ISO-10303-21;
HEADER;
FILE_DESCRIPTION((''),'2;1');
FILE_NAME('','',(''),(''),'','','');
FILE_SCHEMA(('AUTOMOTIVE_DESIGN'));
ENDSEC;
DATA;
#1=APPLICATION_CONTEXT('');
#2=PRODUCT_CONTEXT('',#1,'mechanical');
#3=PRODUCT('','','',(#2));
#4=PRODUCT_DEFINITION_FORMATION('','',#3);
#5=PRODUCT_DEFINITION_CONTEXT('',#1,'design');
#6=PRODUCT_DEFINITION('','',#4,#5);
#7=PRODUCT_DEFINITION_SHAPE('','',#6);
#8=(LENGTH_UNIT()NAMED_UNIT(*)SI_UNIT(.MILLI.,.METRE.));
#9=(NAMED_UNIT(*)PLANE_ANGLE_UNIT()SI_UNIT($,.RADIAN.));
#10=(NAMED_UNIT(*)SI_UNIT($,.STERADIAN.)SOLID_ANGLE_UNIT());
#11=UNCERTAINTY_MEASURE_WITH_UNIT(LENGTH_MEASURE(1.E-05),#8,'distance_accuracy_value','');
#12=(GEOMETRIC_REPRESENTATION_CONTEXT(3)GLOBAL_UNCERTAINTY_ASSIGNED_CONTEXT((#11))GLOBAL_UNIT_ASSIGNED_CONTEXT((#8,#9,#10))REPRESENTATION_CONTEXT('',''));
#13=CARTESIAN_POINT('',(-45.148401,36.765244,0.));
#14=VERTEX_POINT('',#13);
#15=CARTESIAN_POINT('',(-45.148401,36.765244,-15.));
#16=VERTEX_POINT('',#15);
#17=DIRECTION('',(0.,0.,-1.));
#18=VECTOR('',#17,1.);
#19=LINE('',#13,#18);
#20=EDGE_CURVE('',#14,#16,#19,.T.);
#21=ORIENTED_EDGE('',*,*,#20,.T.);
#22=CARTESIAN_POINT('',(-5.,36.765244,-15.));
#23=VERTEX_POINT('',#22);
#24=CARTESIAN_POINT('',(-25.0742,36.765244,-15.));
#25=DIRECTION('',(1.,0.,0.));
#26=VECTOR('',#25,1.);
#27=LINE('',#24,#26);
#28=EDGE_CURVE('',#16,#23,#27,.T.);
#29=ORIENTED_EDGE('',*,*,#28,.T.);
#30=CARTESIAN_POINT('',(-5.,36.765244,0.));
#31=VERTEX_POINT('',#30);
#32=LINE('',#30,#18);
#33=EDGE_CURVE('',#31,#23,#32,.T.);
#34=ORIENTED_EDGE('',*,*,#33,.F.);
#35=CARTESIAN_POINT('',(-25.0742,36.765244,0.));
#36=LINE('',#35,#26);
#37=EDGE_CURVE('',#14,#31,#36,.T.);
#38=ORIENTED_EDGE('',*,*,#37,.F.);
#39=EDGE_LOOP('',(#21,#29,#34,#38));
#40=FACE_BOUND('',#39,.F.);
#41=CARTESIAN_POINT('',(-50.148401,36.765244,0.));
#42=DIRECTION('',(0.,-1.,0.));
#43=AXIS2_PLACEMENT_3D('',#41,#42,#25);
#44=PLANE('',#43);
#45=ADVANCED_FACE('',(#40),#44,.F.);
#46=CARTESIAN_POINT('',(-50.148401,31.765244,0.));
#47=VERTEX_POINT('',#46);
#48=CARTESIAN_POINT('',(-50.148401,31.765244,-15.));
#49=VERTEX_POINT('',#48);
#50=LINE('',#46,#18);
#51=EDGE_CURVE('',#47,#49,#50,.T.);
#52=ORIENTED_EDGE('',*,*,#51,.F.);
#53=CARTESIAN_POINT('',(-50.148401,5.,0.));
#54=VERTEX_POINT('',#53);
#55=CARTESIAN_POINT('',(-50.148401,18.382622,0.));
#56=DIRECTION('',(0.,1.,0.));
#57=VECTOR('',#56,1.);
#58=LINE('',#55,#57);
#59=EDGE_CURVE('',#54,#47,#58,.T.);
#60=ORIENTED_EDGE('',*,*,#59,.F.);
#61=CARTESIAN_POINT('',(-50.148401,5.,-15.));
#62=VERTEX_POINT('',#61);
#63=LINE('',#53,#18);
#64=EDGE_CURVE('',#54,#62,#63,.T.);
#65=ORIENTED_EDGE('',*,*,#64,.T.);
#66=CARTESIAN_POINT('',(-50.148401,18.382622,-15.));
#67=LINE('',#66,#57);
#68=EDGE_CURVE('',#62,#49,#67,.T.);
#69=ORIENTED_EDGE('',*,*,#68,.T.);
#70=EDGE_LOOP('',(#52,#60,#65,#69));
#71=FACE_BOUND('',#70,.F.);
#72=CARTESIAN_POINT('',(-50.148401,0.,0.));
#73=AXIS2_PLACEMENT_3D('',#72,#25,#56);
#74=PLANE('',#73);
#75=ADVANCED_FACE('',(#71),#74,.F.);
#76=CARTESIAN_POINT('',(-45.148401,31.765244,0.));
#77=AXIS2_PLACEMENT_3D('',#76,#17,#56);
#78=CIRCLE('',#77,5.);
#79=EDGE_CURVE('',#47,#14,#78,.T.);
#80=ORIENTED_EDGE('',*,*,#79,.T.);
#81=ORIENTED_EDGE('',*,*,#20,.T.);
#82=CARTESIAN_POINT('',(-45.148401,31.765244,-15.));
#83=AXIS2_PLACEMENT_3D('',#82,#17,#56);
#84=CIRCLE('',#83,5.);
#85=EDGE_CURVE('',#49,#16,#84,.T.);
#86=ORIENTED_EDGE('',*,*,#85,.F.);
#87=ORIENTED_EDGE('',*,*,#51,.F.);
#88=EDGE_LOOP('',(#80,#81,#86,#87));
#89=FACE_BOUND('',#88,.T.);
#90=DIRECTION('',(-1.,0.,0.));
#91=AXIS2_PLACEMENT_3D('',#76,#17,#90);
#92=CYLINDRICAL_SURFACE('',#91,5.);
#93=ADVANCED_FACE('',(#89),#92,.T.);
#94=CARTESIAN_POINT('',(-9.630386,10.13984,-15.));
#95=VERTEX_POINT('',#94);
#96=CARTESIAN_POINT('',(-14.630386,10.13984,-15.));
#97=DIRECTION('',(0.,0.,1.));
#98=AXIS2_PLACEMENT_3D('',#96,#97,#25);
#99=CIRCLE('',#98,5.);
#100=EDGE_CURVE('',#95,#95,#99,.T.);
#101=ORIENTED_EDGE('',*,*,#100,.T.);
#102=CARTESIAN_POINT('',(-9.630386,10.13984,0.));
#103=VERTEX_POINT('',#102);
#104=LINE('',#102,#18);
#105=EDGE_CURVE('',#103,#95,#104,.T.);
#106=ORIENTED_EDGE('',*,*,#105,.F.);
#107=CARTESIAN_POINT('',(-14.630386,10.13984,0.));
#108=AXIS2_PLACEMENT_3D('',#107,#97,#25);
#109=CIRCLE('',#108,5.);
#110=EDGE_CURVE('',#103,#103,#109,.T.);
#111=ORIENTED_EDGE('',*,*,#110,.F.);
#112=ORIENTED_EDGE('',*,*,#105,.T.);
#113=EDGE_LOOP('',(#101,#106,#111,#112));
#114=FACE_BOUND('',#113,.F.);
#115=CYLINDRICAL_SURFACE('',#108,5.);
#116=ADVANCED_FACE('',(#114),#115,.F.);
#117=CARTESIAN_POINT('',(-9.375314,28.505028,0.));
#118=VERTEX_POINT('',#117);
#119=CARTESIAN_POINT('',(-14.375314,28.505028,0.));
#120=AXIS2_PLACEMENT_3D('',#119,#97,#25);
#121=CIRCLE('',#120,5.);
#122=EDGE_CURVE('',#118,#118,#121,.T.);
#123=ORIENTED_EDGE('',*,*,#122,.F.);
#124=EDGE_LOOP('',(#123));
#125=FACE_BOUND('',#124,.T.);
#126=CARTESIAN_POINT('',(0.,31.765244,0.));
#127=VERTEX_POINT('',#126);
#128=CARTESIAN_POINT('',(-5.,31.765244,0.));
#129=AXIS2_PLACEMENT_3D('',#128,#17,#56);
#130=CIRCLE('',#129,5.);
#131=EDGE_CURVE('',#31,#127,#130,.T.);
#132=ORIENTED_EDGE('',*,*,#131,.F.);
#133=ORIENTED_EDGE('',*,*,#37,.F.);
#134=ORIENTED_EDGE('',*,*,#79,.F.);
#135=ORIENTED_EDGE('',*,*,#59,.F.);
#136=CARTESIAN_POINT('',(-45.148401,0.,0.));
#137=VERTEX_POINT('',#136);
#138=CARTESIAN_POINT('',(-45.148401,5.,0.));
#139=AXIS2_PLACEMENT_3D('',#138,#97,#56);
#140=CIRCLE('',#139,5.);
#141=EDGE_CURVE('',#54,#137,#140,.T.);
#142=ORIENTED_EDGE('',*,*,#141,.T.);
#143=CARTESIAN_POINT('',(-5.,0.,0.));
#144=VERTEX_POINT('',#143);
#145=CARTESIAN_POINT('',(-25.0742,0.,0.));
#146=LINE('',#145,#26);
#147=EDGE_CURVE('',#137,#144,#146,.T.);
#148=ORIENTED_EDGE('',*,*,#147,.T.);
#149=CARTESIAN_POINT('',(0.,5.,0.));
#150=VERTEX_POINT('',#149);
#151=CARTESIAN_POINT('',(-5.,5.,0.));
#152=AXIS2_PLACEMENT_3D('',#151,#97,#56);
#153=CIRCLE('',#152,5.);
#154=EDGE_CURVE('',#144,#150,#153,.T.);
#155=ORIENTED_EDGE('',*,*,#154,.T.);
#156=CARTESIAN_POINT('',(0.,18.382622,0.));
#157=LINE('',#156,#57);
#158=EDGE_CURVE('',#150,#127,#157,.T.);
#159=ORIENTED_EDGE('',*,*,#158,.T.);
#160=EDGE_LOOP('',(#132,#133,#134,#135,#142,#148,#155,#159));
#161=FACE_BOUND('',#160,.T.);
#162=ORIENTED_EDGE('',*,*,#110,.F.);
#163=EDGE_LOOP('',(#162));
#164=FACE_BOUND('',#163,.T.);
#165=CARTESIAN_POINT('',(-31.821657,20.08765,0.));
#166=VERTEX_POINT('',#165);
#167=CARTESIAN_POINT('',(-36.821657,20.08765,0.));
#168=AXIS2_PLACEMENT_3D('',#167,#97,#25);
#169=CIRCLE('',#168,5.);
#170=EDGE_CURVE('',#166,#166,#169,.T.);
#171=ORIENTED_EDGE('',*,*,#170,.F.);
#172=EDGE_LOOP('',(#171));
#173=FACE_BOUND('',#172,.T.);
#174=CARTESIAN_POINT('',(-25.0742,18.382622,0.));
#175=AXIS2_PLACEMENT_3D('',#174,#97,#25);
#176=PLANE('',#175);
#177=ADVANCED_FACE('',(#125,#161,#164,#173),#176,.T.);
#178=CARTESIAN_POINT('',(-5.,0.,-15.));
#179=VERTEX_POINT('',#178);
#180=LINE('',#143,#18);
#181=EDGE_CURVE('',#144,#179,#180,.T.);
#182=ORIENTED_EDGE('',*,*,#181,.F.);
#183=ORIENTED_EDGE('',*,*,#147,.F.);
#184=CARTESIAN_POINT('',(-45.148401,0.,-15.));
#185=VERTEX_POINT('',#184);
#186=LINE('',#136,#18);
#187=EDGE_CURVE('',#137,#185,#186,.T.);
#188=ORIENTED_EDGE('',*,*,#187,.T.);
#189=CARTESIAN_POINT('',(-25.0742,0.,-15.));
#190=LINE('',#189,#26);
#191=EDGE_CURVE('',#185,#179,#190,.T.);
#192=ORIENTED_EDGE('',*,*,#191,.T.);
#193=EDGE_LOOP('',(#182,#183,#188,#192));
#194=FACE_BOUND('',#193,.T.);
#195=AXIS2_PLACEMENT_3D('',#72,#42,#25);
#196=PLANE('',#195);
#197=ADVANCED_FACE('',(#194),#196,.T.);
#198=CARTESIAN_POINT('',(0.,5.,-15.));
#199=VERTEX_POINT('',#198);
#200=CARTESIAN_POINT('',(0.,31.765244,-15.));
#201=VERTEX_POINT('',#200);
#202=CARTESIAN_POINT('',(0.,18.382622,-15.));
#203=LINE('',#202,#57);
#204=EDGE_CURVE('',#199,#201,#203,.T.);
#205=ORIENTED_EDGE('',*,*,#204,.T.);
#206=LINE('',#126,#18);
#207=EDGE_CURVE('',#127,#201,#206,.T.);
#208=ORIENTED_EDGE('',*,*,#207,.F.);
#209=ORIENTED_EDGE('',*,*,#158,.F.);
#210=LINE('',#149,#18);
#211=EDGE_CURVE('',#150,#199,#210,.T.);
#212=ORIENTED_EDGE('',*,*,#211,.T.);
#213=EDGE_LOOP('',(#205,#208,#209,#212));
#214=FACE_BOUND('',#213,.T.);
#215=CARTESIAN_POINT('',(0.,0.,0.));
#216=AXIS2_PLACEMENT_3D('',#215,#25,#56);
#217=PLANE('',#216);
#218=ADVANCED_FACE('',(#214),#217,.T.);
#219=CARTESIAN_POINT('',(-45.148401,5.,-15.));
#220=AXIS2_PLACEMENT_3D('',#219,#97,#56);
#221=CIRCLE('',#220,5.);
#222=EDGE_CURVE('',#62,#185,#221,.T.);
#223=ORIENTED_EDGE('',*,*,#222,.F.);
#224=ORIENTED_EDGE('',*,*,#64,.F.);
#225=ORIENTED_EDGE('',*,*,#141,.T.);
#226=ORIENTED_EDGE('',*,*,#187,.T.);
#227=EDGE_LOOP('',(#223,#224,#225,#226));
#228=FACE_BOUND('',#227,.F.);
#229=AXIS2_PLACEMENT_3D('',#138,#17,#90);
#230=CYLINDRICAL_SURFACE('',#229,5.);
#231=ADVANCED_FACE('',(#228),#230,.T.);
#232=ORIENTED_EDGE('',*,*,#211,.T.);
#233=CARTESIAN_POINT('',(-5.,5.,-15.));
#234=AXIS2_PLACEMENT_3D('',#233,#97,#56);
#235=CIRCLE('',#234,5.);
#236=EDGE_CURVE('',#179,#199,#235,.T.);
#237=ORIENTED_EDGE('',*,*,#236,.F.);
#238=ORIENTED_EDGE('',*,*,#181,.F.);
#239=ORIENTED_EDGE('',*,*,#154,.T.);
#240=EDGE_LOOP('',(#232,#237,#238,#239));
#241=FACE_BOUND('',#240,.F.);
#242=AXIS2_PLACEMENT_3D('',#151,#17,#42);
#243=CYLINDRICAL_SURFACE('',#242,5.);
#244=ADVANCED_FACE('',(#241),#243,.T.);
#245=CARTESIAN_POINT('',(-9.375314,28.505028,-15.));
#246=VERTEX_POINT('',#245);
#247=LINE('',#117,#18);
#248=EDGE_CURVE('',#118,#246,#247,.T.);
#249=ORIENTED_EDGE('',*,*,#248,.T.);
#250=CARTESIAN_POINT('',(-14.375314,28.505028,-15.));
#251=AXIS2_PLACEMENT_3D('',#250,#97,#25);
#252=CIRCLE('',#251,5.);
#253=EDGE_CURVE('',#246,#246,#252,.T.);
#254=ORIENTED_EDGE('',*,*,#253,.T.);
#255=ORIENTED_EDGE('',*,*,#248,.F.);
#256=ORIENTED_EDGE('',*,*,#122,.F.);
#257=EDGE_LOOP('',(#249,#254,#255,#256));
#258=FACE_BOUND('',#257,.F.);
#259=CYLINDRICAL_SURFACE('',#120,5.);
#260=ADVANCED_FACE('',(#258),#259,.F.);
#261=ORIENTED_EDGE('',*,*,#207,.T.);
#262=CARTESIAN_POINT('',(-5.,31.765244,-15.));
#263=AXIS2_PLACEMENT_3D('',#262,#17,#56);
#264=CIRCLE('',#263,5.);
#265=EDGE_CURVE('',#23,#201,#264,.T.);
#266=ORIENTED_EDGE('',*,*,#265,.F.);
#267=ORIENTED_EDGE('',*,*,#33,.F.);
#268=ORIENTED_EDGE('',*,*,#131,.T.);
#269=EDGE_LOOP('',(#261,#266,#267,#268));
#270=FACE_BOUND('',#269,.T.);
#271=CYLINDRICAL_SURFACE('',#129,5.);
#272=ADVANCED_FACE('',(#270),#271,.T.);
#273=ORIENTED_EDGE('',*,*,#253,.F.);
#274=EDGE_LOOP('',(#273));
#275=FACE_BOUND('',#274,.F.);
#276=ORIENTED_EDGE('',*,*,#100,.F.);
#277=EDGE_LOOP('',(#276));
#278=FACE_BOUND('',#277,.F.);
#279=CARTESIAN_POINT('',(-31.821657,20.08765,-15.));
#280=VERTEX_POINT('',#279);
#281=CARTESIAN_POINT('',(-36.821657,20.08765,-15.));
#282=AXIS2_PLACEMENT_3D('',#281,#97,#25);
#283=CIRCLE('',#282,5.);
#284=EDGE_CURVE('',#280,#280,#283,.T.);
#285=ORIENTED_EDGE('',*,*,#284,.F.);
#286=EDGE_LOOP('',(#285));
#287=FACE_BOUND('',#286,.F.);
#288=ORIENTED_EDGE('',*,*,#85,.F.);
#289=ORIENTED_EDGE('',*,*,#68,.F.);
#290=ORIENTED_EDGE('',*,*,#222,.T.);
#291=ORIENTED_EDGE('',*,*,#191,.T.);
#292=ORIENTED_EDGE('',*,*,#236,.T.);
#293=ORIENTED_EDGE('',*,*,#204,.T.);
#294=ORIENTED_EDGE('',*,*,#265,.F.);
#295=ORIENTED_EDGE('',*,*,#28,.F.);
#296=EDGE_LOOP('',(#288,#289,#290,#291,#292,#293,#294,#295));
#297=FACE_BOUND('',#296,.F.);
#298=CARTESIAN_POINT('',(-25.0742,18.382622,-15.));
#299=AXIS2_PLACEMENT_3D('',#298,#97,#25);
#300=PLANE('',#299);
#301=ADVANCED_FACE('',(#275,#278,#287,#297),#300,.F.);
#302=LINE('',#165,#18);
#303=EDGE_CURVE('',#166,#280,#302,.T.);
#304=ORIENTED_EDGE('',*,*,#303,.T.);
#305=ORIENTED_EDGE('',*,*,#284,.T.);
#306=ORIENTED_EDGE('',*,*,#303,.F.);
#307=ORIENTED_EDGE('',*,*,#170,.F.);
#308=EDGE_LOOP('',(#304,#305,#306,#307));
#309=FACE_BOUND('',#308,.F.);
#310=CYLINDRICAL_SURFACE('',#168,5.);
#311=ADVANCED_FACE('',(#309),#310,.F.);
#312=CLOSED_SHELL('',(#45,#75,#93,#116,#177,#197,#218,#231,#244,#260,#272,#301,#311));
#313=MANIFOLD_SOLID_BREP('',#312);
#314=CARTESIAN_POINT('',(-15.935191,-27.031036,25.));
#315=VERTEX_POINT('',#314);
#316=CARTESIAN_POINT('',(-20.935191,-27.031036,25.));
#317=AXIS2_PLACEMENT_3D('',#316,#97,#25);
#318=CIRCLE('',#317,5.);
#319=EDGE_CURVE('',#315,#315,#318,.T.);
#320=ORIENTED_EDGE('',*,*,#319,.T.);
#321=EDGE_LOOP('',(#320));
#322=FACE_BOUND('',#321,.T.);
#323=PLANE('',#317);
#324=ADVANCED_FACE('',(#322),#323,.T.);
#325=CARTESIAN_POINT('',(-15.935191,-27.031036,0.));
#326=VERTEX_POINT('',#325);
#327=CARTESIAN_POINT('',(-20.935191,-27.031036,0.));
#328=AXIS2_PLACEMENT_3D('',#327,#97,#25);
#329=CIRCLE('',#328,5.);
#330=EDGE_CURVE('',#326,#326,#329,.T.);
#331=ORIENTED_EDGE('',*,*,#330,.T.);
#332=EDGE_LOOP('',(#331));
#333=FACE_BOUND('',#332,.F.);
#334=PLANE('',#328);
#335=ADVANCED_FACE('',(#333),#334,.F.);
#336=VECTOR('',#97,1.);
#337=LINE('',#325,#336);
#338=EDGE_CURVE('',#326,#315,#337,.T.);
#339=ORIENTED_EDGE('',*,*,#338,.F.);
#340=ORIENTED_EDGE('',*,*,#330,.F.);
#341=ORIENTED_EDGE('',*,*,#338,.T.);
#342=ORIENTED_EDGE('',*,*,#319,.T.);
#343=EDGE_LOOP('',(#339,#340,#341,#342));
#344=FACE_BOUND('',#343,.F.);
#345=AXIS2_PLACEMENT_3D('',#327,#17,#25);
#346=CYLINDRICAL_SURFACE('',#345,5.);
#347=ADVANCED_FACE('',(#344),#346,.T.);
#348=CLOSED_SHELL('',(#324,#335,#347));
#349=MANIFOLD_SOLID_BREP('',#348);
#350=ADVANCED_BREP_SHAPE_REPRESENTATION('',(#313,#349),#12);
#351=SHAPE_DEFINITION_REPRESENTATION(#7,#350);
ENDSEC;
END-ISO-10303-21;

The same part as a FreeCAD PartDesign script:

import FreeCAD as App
import Part
import Sketcher
from FreeCAD import Vector
Q = App.Units.Quantity


def edges_at(feature, points):
    """Names of the edges that pass closest to the given points."""
    edges = feature.Shape.Edges
    near = lambda p: min(range(len(edges)), key=lambda i: edges[i].distToShape(Part.Vertex(*p))[0])
    return sorted({f"Edge{near(p) + 1}" for p in points})

doc = App.newDocument("Part")
body = doc.addObject("PartDesign::Body", "Body")

# Sketch on XY plane
sketch1 = body.newObject("Sketcher::SketchObject", "Sketch")
sketch1.AttachmentSupport = (doc.getObject("XY_Plane"), [""])
sketch1.MapMode = "FlatFace"
sketch1.addGeometry([
    Part.LineSegment(Vector(-50.148401, 36.765244, 0), Vector(-50.148401, 0, 0)),
    Part.LineSegment(Vector(-50.148401, 0, 0), Vector(0, 0, 0)),
    Part.LineSegment(Vector(0, 0, 0), Vector(0, 36.765244, 0)),
    Part.LineSegment(Vector(0, 36.765244, 0), Vector(-50.148401, 36.765244, 0)),
], False)
sketch1.addConstraint([
    Sketcher.Constraint("Coincident", 0, 2, 1, 1),
    Sketcher.Constraint("Coincident", 1, 2, 2, 1),
    Sketcher.Constraint("Coincident", 2, 2, 3, 1),
    Sketcher.Constraint("Coincident", 3, 2, 0, 1),
    Sketcher.Constraint("Vertical", 0),
    Sketcher.Constraint("Horizontal", 1),
    Sketcher.Constraint("Vertical", 2),
    Sketcher.Constraint("Horizontal", 3),
    Sketcher.Constraint("Coincident", 1, 2, -1, 1),
    Sketcher.Constraint("DistanceX", 1, 1, 1, 2, Q("50.148401 mm")),
    Sketcher.Constraint("DistanceY", 0, 2, 0, 1, Q("36.765244 mm")),
])
pad1 = body.newObject("PartDesign::Pad", "Pad")
pad1.Profile = sketch1
pad1.Length = 15
pad1.Reversed = True

# Sketch on XY plane
sketch2 = body.newObject("Sketcher::SketchObject", "Sketch001")
sketch2.AttachmentSupport = (doc.getObject("XY_Plane"), [""])
sketch2.MapMode = "FlatFace"
sketch2.addGeometry([
    Part.Circle(Vector(-14.375314, 28.505028, 0), Vector(0, 0, 1), 5),
    Part.Circle(Vector(-14.630386, 10.13984, 0), Vector(0, 0, 1), 5),
    Part.Circle(Vector(-36.821657, 20.08765, 0), Vector(0, 0, 1), 5),
], False)
sketch2.addConstraint([
    Sketcher.Constraint("Equal", 0, 1),
    Sketcher.Constraint("Equal", 1, 2),
    Sketcher.Constraint("Diameter", 0, Q("10 mm")),
    Sketcher.Constraint("DistanceY", -1, 1, 1, 3, Q("10.13984 mm")),
    Sketcher.Constraint("DistanceY", -1, 1, 2, 3, Q("20.08765 mm")),
    Sketcher.Constraint("DistanceY", 1, 3, 0, 3, Q("18.365188 mm")),
    Sketcher.Constraint("DistanceX", 2, 3, 1, 3, Q("22.191271 mm")),
    Sketcher.Constraint("DistanceX", 0, 3, -1, 1, Q("14.375314 mm")),
    Sketcher.Constraint("DistanceX", 1, 3, -1, 1, Q("14.630386 mm")),
])
pocket1 = body.newObject("PartDesign::Pocket", "Pocket")
pocket1.Profile = sketch2
pocket1.Length = 25
doc.recompute()

fillet = body.newObject("PartDesign::Fillet", "Fillet")
fillet.Base = (pocket1, edges_at(pocket1, [
    (-50.148, 0, -7.5),
    (0, 0, -7.5),
    (0, 36.765, -7.5),
    (-50.148, 36.765, -7.5),
]))
fillet.Radius = 5
body2 = doc.addObject("PartDesign::Body", "Body001")

# Sketch on XY plane
sketch3 = body2.newObject("Sketcher::SketchObject", "Sketch002")
sketch3.AttachmentSupport = (doc.getObject("XY_Plane001"), [""])
sketch3.MapMode = "FlatFace"
sketch3.addGeometry(Part.Circle(Vector(-20.935191, -27.031036, 0), Vector(0, 0, 1), 5), False)
sketch3.addConstraint([
    Sketcher.Constraint("Diameter", 0, Q("10 mm")),
    Sketcher.Constraint("DistanceX", 0, 3, -1, 1, Q("20.935191 mm")),
    Sketcher.Constraint("DistanceY", 0, 3, -1, 1, Q("27.031036 mm")),
])
pad2 = body2.newObject("PartDesign::Pad", "Pad001")
pad2.Profile = sketch3
pad2.Length = 25

doc.recompute()
